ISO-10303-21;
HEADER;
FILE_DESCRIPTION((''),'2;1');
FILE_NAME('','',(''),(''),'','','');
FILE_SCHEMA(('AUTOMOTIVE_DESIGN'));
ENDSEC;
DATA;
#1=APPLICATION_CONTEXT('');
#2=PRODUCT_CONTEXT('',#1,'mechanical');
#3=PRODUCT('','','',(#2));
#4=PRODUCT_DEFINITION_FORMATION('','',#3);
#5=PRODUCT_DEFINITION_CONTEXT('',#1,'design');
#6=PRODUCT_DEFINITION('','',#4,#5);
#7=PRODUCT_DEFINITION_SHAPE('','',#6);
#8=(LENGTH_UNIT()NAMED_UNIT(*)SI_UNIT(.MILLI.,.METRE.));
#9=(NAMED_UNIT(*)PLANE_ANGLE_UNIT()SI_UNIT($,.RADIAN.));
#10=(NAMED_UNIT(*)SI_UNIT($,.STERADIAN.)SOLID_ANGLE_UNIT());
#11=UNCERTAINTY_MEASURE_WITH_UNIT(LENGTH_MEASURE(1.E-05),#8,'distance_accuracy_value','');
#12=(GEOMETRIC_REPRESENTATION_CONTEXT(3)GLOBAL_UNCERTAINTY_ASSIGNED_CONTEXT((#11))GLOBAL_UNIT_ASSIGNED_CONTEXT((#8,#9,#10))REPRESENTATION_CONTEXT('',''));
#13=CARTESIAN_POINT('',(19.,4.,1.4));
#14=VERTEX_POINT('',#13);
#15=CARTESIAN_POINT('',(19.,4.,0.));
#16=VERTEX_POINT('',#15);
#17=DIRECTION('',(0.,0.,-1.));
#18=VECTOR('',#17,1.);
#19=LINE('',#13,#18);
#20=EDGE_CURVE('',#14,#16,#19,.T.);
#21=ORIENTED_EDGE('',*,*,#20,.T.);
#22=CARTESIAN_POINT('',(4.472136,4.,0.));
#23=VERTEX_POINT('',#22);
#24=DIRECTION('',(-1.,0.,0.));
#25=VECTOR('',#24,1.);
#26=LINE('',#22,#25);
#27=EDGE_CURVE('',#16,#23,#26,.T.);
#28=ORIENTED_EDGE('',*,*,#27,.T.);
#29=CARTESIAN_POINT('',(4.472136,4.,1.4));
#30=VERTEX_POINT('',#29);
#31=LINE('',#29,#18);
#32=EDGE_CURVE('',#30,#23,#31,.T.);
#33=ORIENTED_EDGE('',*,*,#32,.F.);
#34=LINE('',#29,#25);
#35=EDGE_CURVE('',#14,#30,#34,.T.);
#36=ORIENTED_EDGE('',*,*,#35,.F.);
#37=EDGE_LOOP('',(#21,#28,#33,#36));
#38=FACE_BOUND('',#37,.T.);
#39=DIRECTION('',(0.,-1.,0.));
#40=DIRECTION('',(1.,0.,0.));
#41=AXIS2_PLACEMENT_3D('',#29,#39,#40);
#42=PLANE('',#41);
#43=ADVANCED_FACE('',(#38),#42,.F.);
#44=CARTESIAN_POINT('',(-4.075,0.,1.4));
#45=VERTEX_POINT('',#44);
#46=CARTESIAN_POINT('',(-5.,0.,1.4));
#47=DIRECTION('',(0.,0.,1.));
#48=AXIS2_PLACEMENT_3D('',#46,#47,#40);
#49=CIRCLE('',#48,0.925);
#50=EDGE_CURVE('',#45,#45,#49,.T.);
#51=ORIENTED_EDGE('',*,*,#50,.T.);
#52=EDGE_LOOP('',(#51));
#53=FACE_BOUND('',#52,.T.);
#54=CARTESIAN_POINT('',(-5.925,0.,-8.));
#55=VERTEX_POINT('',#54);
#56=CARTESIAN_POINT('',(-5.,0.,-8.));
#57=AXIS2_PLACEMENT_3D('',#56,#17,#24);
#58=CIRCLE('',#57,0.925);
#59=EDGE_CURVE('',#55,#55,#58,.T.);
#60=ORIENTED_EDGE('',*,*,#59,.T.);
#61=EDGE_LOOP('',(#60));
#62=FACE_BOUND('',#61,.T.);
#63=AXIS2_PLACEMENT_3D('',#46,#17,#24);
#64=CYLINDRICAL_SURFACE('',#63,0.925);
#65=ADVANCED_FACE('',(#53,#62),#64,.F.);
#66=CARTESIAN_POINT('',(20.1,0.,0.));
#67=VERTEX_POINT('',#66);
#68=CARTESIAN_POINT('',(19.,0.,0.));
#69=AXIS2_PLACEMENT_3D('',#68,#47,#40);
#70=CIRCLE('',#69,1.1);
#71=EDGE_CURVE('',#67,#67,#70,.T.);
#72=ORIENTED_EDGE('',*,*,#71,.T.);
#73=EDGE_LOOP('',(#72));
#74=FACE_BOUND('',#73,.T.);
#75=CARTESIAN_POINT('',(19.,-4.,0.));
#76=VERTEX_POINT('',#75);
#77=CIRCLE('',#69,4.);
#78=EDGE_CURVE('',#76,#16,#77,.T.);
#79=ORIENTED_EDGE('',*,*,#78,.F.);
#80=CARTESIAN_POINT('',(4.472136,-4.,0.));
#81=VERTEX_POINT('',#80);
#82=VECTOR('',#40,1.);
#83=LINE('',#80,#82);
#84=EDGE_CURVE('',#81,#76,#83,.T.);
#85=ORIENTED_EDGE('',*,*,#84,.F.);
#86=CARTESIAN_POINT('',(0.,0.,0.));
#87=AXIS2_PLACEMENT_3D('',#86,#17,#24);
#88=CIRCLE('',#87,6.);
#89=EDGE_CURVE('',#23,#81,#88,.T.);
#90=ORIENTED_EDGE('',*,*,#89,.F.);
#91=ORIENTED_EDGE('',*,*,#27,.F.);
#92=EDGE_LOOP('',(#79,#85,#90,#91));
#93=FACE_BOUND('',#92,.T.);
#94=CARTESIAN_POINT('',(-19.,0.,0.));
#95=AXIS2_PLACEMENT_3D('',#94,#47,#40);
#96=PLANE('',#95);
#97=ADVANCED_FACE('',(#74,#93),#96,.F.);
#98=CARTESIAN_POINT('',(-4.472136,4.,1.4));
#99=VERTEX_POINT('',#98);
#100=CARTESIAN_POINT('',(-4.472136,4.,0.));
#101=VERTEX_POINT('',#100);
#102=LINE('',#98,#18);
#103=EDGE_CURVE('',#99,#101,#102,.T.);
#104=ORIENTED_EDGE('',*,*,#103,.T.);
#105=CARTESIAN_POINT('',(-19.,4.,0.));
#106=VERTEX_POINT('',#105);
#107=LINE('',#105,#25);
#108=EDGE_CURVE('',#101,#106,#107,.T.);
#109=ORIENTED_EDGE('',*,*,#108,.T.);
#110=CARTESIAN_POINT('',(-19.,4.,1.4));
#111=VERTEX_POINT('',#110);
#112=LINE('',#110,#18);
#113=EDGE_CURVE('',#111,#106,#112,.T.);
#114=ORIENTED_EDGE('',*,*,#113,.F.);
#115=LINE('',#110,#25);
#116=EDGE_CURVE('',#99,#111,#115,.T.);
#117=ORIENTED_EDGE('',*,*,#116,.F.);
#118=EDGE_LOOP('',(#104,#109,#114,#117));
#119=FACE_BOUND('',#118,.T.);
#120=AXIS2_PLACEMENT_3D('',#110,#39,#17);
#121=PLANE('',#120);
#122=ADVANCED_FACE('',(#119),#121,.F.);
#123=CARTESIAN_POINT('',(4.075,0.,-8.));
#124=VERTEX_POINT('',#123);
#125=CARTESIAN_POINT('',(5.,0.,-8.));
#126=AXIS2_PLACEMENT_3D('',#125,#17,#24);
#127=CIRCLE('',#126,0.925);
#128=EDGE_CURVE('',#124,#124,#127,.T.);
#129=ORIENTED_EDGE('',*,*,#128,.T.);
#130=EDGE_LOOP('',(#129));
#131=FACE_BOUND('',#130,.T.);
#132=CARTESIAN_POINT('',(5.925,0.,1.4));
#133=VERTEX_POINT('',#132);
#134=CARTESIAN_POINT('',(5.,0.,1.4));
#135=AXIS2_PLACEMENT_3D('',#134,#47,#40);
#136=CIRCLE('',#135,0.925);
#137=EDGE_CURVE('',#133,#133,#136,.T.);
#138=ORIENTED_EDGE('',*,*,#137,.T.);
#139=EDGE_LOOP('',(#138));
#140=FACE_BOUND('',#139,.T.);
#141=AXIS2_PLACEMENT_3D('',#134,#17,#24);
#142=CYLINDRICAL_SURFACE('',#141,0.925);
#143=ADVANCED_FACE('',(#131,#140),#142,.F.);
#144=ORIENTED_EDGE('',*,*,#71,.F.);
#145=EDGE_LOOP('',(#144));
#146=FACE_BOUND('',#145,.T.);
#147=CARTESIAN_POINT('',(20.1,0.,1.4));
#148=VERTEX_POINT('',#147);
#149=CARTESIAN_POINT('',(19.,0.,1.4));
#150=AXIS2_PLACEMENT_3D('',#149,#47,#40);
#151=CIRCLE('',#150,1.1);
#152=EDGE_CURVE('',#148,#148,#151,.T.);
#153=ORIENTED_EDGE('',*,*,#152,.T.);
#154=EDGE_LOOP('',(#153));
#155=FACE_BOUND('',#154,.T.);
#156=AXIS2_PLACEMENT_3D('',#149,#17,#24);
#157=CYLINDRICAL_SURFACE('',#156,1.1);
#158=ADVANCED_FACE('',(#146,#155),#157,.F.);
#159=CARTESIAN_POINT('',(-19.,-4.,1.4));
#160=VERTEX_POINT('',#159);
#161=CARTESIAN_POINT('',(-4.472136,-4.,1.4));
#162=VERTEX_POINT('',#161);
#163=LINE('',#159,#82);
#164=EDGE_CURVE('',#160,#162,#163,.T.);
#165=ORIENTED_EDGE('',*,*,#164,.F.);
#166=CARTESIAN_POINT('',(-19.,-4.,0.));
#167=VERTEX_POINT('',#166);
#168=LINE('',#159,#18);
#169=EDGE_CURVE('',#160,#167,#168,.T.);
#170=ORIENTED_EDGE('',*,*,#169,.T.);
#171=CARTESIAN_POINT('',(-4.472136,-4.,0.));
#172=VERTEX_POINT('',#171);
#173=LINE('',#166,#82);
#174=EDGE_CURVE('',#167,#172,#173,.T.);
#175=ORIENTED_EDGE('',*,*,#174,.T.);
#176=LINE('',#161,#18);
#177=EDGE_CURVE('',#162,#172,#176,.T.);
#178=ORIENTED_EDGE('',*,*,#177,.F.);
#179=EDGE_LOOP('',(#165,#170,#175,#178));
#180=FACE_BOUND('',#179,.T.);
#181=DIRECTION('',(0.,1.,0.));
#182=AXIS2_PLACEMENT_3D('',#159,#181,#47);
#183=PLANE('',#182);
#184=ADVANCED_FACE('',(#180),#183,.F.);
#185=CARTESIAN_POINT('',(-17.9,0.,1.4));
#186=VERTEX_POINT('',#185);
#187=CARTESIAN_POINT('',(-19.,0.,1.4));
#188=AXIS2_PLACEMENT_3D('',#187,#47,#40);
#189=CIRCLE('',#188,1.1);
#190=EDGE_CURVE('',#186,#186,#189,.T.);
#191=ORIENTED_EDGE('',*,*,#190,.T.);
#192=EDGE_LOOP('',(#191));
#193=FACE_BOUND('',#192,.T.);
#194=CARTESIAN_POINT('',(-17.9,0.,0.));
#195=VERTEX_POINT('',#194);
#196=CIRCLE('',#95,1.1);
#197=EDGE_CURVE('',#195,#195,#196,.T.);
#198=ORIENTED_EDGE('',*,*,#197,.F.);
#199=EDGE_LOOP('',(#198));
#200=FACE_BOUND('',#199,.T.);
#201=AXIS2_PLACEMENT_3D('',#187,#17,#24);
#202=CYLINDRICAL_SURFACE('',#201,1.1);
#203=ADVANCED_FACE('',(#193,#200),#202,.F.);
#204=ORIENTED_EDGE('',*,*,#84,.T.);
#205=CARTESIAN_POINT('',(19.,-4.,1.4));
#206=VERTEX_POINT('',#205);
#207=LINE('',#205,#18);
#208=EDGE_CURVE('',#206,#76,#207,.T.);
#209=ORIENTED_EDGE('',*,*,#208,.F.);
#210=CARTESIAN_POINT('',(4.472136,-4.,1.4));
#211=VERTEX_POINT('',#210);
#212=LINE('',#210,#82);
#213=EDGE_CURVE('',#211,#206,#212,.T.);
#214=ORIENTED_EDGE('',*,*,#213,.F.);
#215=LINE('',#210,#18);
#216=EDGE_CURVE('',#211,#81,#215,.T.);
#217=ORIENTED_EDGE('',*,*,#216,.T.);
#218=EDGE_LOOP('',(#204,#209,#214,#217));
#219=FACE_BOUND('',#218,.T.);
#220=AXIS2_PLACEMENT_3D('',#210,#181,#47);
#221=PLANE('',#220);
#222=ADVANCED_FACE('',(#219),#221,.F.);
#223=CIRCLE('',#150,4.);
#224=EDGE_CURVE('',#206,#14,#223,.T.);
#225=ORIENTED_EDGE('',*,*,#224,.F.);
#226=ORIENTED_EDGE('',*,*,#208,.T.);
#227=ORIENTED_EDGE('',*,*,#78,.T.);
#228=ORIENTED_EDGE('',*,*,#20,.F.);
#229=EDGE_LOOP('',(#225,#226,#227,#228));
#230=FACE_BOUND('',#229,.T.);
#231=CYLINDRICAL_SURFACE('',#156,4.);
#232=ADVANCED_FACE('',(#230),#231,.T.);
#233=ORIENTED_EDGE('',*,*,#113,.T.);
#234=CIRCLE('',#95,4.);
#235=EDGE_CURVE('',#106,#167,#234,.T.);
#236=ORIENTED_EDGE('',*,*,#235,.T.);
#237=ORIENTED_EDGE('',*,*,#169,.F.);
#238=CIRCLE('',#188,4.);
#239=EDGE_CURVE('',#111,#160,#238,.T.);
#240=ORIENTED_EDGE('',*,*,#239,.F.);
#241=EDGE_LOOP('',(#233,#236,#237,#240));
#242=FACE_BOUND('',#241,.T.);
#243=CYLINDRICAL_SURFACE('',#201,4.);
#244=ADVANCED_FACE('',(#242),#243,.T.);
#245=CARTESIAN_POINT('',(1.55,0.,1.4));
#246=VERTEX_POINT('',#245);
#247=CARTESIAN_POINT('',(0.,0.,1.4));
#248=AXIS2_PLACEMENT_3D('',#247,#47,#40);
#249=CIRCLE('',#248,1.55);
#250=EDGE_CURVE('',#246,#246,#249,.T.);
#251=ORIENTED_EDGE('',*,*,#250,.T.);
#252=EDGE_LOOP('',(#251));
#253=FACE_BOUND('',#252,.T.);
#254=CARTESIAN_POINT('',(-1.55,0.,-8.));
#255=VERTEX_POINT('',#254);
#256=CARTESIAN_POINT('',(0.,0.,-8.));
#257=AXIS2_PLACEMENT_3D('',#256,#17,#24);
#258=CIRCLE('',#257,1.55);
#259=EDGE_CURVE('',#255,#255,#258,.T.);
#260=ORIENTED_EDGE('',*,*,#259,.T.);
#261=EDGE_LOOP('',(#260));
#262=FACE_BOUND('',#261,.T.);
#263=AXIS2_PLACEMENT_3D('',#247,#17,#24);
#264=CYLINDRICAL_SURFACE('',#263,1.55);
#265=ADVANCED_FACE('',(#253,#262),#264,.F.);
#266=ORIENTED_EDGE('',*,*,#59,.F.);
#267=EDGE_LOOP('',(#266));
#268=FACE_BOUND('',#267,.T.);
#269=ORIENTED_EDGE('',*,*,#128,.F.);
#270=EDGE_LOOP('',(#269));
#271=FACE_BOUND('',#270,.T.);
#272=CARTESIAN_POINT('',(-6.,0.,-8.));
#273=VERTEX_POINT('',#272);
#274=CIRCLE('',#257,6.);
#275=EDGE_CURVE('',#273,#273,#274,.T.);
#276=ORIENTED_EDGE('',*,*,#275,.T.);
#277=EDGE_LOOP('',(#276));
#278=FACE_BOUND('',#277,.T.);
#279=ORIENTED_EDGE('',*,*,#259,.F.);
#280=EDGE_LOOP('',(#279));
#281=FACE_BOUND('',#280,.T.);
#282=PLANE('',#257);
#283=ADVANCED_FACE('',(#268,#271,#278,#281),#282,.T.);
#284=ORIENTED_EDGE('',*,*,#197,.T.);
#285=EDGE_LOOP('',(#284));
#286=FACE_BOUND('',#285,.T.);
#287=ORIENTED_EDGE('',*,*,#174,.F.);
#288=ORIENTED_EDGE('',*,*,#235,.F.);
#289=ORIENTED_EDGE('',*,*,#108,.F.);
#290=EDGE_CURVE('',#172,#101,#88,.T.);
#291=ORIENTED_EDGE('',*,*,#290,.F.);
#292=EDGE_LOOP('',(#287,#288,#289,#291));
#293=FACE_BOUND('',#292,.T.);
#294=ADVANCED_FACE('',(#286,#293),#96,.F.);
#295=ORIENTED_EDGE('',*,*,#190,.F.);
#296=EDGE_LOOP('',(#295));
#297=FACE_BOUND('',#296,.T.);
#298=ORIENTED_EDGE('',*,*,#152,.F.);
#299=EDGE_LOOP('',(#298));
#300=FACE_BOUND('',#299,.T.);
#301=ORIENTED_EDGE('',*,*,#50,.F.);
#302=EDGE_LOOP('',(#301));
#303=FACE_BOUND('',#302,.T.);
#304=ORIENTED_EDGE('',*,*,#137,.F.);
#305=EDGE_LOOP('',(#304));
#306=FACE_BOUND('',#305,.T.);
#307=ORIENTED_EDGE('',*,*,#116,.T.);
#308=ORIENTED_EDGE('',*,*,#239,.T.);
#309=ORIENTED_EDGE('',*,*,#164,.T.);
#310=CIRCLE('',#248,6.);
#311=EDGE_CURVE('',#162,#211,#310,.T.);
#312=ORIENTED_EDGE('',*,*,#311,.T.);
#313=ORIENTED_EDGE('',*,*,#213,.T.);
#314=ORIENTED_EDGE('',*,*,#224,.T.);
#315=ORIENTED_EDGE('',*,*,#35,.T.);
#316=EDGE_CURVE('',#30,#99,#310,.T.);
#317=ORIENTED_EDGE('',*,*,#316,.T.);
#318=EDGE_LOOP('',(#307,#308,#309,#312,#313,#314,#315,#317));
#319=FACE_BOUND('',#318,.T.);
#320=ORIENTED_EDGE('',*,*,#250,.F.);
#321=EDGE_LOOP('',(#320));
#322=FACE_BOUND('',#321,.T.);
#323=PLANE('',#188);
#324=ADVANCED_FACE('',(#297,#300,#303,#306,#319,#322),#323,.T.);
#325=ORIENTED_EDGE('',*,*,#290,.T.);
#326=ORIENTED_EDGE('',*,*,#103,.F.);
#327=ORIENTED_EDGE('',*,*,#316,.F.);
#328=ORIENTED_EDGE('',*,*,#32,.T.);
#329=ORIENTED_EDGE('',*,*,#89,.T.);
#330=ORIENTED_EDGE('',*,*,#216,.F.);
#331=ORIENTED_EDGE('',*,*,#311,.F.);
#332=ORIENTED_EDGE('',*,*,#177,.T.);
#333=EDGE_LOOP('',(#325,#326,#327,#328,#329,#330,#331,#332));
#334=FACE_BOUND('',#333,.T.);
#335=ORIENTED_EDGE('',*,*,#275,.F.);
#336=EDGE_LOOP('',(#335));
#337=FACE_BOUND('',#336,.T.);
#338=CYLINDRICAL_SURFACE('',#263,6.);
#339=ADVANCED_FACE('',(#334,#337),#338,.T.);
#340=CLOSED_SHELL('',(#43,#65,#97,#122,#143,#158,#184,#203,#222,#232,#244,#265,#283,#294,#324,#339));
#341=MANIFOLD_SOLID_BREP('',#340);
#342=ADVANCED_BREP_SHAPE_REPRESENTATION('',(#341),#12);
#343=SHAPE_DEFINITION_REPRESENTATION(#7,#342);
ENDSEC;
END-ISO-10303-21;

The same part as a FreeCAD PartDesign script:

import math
import FreeCAD as App
import Part
import Sketcher
from FreeCAD import Vector

doc = App.newDocument("Part")
params = doc.addObject("Spreadsheet::Sheet", "Params")
for row, (alias, value) in enumerate([
    ("sketch1_radius", "6 mm"),
    ("sketch1_radius2", "4 mm"),
    ("sketch1_diameter", "2.2 mm"),
    ("sketch1_diameter2", "3.1 mm"),
    ("sketch1_diameter3", "1.85 mm"),
    ("pad1_length", "1.4 mm"),
    ("sketch2_diameter", "12 mm"),
    ("sketch2_diameter2", "3.1 mm"),
    ("sketch2_diameter3", "1.85 mm"),
    ("pad2_length", "8 mm"),
], start=1):
    params.set(f"A{row}", alias)
    params.set(f"B{row}", "=" + value)
    params.setAlias(f"B{row}", alias)

body = doc.addObject("PartDesign::Body", "Body")

sketch1 = doc.addObject("Sketcher::SketchObject", "Sketch")
body.addObject(sketch1)
sketch1.AttachmentSupport = (doc.XY_Plane, [""])
sketch1.MapMode = "FlatFace"
sketch1.addGeometry([
    Part.LineSegment(Vector(19, 4, 0), Vector(4.5, 4, 0)),
    Part.ArcOfCircle(Part.Circle(Vector(0, 0, 0), Vector(0, 0, 1), 6), math.radians(42), math.radians(138)),
    Part.LineSegment(Vector(-4.5, 4, 0), Vector(-19, 4, 0)),
    Part.ArcOfCircle(Part.Circle(Vector(-19, 0, 0), Vector(0, 0, 1), 4), math.radians(90), math.radians(270)),
    Part.LineSegment(Vector(-19, -4, 0), Vector(-4.5, -4, 0)),
    Part.ArcOfCircle(Part.Circle(Vector(0, 0, 0), Vector(0, 0, 1), 6), math.radians(-138), math.radians(-42)),
    Part.LineSegment(Vector(4.5, -4, 0), Vector(19, -4, 0)),
    Part.ArcOfCircle(Part.Circle(Vector(19, 0, 0), Vector(0, 0, 1), 4), math.radians(-90), math.radians(90)),
    Part.Circle(Vector(19, 0, 0), Vector(0, 0, 1), 1.1),
    Part.Circle(Vector(5, 0, 0), Vector(0, 0, 1), 0.9),
    Part.Circle(Vector(0, 0, 0), Vector(0, 0, 1), 1.6),
    Part.Circle(Vector(-5, 0, 0), Vector(0, 0, 1), 0.9),
    Part.Circle(Vector(-19, 0, 0), Vector(0, 0, 1), 1.1),
], False)
sketch1.addConstraint([
    Sketcher.Constraint("Coincident", 0, 2, 1, 1),
    Sketcher.Constraint("Coincident", 1, 2, 2, 1),
    Sketcher.Constraint("Tangent", 2, 2, 3, 1),
    Sketcher.Constraint("Tangent", 3, 2, 4, 1),
    Sketcher.Constraint("Coincident", 4, 2, 5, 1),
    Sketcher.Constraint("Coincident", 5, 2, 6, 1),
    Sketcher.Constraint("Tangent", 6, 2, 7, 1),
    Sketcher.Constraint("Tangent", 7, 2, 0, 1),
    Sketcher.Constraint("Horizontal", 0),
    Sketcher.Constraint("Horizontal", 2),
    Sketcher.Constraint("Horizontal", 4),
    Sketcher.Constraint("Horizontal", 6),
    Sketcher.Constraint("Coincident", 1, 3, -1, 1),
    Sketcher.Constraint("Coincident", 5, 3, -1, 1),
    Sketcher.Constraint("Coincident", 10, 3, -1, 1),
    Sketcher.Constraint("Coincident", 8, 3, 7, 3),
    Sketcher.Constraint("Coincident", 12, 3, 3, 3),
    Sketcher.Constraint("Equal", 1, 5),
    Sketcher.Constraint("Equal", 3, 7),
    Sketcher.Constraint("Equal", 9, 11),
    Sketcher.Constraint("Equal", 8, 12),
    Sketcher.Constraint("Symmetric", 3, 3, 7, 3, -1, 1),
    Sketcher.Constraint("Symmetric", 9, 3, 11, 3, -1, 1),
    Sketcher.Constraint("PointOnObject", 3, 3, -1),
    Sketcher.Constraint("PointOnObject", 9, 3, -1),
    Sketcher.Constraint("Radius", 1, 6.0),
    Sketcher.Constraint("Radius", 3, 4.0),
    Sketcher.Constraint("Diameter", 8, 2.2),
    Sketcher.Constraint("Diameter", 10, 3.1),
    Sketcher.Constraint("Diameter", 9, 1.85),
    Sketcher.Constraint("DistanceX", 3, 3, -1, 1, 19.0),
    Sketcher.Constraint("DistanceX", -1, 1, 9, 3, 5.0),
])
sketch1.setExpression("Constraints[25]", "Params.sketch1_radius")
sketch1.setExpression("Constraints[26]", "Params.sketch1_radius2")
sketch1.setExpression("Constraints[27]", "Params.sketch1_diameter")
sketch1.setExpression("Constraints[28]", "Params.sketch1_diameter2")
sketch1.setExpression("Constraints[29]", "Params.sketch1_diameter3")
pad1 = doc.addObject("PartDesign::Pad", "Pad")
body.addObject(pad1)
pad1.Profile = sketch1
pad1.setExpression("Length", "Params.pad1_length")

sketch2 = doc.addObject("Sketcher::SketchObject", "Sketch001")
body.addObject(sketch2)
sketch2.AttachmentSupport = (doc.XY_Plane, [""])
sketch2.MapMode = "FlatFace"
sketch2.AttachmentOffset = App.Placement(Vector(0, 0, -8), App.Rotation())
sketch2.addGeometry([
    Part.Circle(Vector(0, 0, 0), Vector(0, 0, 1), 6),
    Part.Circle(Vector(5, 0, 0), Vector(0, 0, 1), 0.9),
    Part.Circle(Vector(0, 0, 0), Vector(0, 0, 1), 1.6),
    Part.Circle(Vector(-5, 0, 0), Vector(0, 0, 1), 0.9),
], False)
sketch2.addConstraint([
    Sketcher.Constraint("Coincident", 0, 3, -1, 1),
    Sketcher.Constraint("Coincident", 2, 3, -1, 1),
    Sketcher.Constraint("Equal", 1, 3),
    Sketcher.Constraint("Symmetric", 1, 3, 3, 3, -1, 1),
    Sketcher.Constraint("PointOnObject", 1, 3, -1),
    Sketcher.Constraint("Diameter", 0, 12.0),
    Sketcher.Constraint("Diameter", 2, 3.1),
    Sketcher.Constraint("Diameter", 1, 1.85),
    Sketcher.Constraint("DistanceX", -1, 1, 1, 3, 5.0),
])
sketch2.setExpression("Constraints[5]", "Params.sketch2_diameter")
sketch2.setExpression("Constraints[6]", "Params.sketch2_diameter2")
sketch2.setExpression("Constraints[7]", "Params.sketch2_diameter3")
pad2 = doc.addObject("PartDesign::Pad", "Pad001")
body.addObject(pad2)
pad2.Profile = sketch2
pad2.setExpression("Length", "Params.pad2_length")

doc.recompute()
